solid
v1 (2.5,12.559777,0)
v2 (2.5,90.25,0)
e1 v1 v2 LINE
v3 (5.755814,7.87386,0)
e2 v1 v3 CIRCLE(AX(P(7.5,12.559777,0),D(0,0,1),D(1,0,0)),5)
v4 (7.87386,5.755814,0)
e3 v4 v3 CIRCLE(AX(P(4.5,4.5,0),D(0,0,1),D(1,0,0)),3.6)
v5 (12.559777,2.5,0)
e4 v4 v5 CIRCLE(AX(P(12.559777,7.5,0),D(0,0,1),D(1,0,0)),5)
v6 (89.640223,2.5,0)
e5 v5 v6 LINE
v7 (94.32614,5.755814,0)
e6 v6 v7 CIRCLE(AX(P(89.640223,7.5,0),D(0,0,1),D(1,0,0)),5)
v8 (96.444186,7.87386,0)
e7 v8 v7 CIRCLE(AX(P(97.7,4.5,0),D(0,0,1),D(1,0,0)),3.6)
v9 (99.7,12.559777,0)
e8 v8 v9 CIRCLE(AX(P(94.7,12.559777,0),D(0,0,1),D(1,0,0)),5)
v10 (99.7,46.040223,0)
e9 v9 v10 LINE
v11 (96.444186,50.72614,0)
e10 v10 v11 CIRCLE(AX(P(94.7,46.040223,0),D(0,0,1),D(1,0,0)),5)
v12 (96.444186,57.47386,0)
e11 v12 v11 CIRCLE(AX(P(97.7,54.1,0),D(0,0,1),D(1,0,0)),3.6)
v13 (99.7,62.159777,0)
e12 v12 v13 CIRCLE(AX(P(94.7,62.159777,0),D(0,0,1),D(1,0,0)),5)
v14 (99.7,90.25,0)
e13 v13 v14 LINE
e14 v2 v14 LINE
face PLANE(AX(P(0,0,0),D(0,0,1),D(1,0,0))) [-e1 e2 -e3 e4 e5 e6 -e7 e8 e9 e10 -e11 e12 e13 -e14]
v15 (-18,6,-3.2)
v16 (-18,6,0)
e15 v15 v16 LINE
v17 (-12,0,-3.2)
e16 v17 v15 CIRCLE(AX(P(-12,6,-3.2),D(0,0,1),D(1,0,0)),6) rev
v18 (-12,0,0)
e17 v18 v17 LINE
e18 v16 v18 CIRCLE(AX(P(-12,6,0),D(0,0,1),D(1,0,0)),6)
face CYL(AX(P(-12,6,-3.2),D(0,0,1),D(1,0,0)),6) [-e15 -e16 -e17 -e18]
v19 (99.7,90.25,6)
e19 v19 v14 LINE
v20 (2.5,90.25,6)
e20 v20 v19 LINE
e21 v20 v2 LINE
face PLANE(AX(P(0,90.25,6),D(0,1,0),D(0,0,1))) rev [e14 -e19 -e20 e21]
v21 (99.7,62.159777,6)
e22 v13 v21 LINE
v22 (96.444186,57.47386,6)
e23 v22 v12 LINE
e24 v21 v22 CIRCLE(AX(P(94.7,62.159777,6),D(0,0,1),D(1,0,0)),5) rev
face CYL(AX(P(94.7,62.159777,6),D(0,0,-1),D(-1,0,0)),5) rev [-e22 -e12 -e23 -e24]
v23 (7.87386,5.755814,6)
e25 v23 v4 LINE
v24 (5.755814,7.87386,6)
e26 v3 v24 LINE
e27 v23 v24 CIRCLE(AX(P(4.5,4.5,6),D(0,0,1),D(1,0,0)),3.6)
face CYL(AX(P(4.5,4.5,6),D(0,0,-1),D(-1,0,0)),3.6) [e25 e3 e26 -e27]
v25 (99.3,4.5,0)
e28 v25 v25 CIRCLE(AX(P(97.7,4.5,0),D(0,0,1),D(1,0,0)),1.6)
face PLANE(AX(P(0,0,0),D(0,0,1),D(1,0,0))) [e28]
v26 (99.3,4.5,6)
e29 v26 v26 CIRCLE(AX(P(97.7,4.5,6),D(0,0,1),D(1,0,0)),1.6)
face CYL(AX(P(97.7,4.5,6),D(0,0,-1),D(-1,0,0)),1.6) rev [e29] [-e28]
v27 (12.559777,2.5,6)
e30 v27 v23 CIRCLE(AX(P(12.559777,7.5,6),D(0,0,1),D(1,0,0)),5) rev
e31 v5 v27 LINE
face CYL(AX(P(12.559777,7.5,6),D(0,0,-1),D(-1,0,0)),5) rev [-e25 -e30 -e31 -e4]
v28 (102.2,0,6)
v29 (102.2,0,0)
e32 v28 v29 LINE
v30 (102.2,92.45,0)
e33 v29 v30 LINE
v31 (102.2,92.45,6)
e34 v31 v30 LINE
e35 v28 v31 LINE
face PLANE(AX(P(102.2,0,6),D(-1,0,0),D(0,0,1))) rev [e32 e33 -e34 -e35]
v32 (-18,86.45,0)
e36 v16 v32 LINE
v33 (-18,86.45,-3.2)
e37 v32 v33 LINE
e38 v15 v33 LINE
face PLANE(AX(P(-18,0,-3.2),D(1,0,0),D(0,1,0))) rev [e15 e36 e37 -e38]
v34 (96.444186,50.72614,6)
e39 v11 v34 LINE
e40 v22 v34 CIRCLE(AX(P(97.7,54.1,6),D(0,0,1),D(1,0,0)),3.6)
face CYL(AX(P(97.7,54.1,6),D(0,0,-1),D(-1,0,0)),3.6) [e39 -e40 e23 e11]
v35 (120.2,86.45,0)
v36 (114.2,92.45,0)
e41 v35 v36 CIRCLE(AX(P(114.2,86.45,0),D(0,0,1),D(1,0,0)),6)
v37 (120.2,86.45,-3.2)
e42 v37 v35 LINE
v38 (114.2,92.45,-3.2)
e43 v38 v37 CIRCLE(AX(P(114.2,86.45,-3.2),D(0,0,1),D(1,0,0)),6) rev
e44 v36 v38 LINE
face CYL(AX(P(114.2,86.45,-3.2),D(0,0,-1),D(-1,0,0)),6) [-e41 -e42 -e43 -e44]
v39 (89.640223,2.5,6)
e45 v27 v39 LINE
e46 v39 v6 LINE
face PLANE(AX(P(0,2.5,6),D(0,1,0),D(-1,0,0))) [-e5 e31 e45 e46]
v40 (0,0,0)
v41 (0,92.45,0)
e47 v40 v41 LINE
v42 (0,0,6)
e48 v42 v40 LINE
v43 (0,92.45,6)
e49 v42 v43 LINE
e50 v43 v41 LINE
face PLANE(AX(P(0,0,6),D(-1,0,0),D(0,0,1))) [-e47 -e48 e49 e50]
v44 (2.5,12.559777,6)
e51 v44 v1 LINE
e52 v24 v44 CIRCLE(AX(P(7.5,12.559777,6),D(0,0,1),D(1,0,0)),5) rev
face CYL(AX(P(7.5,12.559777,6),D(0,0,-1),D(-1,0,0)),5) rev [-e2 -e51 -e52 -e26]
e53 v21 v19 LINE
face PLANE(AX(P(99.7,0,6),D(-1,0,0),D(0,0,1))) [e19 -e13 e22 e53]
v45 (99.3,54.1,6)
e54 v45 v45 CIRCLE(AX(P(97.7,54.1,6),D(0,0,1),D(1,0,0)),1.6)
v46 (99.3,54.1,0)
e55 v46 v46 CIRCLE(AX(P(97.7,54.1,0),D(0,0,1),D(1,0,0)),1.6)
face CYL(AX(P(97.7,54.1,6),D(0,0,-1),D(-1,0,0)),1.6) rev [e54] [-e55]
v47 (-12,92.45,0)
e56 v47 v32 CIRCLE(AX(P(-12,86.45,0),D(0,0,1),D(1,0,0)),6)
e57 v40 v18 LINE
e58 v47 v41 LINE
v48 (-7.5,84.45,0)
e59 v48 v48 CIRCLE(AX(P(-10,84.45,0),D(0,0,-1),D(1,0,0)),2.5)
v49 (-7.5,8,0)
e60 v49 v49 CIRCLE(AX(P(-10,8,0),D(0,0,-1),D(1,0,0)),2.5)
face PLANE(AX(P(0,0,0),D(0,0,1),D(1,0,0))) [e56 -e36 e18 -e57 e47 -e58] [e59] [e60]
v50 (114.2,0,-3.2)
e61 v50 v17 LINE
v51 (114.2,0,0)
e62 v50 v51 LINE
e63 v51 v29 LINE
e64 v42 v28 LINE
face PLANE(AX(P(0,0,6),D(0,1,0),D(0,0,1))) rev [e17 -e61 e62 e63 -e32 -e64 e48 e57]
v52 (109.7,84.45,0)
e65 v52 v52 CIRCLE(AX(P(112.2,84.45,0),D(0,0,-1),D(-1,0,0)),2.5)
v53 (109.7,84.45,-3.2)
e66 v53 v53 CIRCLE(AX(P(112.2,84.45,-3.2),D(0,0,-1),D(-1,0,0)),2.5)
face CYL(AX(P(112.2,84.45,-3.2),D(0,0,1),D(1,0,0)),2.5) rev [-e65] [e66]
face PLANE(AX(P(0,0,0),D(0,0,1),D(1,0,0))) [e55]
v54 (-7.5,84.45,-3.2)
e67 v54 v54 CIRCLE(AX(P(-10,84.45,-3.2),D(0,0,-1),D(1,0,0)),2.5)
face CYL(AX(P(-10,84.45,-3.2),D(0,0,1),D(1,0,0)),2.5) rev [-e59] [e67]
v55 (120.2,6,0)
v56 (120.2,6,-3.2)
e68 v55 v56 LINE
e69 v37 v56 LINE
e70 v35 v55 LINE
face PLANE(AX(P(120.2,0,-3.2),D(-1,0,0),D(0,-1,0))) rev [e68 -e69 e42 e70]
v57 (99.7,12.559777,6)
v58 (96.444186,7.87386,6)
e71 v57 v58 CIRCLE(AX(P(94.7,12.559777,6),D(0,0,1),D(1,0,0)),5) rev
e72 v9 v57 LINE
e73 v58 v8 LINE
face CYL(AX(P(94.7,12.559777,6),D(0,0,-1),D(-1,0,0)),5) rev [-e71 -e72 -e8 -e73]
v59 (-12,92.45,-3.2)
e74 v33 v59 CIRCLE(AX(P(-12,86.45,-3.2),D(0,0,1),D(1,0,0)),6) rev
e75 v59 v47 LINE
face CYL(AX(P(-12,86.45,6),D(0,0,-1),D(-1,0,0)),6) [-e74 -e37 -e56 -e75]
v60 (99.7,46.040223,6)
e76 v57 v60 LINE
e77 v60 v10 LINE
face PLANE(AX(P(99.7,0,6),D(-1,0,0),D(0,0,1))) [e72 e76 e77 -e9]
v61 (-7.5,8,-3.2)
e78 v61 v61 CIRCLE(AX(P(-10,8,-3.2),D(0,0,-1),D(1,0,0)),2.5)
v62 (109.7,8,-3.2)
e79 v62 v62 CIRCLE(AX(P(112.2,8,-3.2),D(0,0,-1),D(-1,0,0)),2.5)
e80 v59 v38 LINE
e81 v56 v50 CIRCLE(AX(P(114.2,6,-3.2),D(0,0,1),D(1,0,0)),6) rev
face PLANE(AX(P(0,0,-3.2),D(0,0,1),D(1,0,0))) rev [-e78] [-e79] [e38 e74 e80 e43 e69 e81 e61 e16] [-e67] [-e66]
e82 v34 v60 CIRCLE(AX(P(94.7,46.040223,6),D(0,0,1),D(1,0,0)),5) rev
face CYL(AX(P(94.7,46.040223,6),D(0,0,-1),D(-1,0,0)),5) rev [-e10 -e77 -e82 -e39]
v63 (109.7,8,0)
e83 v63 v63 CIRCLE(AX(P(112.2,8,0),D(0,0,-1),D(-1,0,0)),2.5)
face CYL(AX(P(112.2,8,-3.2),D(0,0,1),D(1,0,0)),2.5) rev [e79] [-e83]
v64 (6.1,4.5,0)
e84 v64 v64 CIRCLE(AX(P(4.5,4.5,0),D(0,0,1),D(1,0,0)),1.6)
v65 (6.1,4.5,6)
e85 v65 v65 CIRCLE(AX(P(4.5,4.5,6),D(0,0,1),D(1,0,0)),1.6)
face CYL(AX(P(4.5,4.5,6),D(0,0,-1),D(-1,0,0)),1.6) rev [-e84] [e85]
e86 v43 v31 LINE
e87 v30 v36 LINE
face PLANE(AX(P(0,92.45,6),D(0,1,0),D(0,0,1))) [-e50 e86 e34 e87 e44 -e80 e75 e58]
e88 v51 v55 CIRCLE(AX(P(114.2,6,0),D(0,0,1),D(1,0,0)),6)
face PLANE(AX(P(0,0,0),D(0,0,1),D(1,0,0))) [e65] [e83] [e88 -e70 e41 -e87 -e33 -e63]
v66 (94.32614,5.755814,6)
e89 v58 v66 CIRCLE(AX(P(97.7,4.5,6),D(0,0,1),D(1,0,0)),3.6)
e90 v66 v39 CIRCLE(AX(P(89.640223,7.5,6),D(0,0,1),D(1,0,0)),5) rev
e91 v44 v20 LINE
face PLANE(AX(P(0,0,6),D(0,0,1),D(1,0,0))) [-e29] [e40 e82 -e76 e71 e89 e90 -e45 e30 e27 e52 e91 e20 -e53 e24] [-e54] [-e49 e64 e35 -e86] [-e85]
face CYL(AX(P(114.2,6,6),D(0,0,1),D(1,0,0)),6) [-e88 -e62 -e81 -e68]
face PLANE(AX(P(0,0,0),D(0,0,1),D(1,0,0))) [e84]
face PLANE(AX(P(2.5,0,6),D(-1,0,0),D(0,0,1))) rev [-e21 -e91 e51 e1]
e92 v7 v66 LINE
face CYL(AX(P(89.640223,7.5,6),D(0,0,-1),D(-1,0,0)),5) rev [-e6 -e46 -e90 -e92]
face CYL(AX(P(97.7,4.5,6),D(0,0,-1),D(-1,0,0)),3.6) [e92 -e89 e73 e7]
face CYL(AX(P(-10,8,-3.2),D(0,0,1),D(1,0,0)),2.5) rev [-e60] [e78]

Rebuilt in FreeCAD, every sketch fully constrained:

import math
import FreeCAD as App
import Part
import Sketcher
from FreeCAD import Vector


def edges_at(feature, points):
    """Names of the edges that pass closest to the given points."""
    edges = feature.Shape.Edges
    near = lambda p: min(range(len(edges)), key=lambda i: edges[i].distToShape(Part.Vertex(*p))[0])
    return sorted({f"Edge{near(p) + 1}" for p in points})


def add_polygon(sketch, points):
    """Adds a closed chain of lines whose ends are joined by coincident constraints."""
    first, n = sketch.GeometryCount, len(points)
    for a, b in zip(points, points[1:] + points[:1]):
        sketch.addGeometry(Part.LineSegment(App.Vector(*a, 0), App.Vector(*b, 0)), False)
    for i in range(n):
        sketch.addConstraint(Sketcher.Constraint("Coincident", first + i, 2, first + (i + 1) % n, 1))

doc = App.newDocument("Part")
body = doc.addObject("PartDesign::Body", "Body")

sketch1 = body.newObject("Sketcher::SketchObject", "Sketch")
sketch1.AttachmentSupport = (doc.getObject("XY_Plane"), [""])
sketch1.MapMode = "FlatFace"
add_polygon(sketch1, [(0, 92.5), (0, 0), (102.2, 0), (102.2, 92.5)])
sketch1.addGeometry(Part.Circle(Vector(4.5, 4.5, 0), Vector(0, 0, 1), 1.6), False)
sketch1.addGeometry(Part.Circle(Vector(97.7, 4.5, 0), Vector(0, 0, 1), 1.6), False)
sketch1.addGeometry(Part.ArcOfCircle(Part.Circle(Vector(97.7, 4.5, 0), Vector(0, 0, 1), 3.6), math.radians(56), math.radians(214)), False)
sketch1.addGeometry(Part.LineSegment(Vector(94.7, 2.5, 0), Vector(7.5, 2.5, 0)), False)
sketch1.addGeometry(Part.ArcOfCircle(Part.Circle(Vector(4.5, 4.5, 0), Vector(0, 0, 1), 3.6), math.radians(-34), math.radians(124)), False)
sketch1.addGeometry(Part.LineSegment(Vector(2.5, 7.5, 0), Vector(2.5, 90.2, 0)), False)
sketch1.addGeometry(Part.LineSegment(Vector(2.5, 90.2, 0), Vector(99.7, 90.2, 0)), False)
sketch1.addGeometry(Part.LineSegment(Vector(99.7, 90.2, 0), Vector(99.7, 57.1, 0)), False)
sketch1.addGeometry(Part.ArcOfCircle(Part.Circle(Vector(97.7, 54.1, 0), Vector(0, 0, 1), 3.6), math.radians(56), math.radians(304)), False)
sketch1.addGeometry(Part.LineSegment(Vector(99.7, 51.1, 0), Vector(99.7, 7.5, 0)), False)
sketch1.addGeometry(Part.Circle(Vector(97.7, 54.1, 0), Vector(0, 0, 1), 1.6), False)
sketch1.addConstraint([
    Sketcher.Constraint("Coincident", 6, 2, 7, 1),
    Sketcher.Constraint("Coincident", 7, 2, 8, 1),
    Sketcher.Constraint("Coincident", 8, 2, 9, 1),
    Sketcher.Constraint("Coincident", 9, 2, 10, 1),
    Sketcher.Constraint("Coincident", 10, 2, 11, 1),
    Sketcher.Constraint("Coincident", 11, 2, 12, 1),
    Sketcher.Constraint("Coincident", 12, 2, 13, 1),
    Sketcher.Constraint("Coincident", 13, 2, 6, 1),
    Sketcher.Constraint("Vertical", 0),
    Sketcher.Constraint("Horizontal", 1),
    Sketcher.Constraint("Vertical", 2),
    Sketcher.Constraint("Horizontal", 3),
    Sketcher.Constraint("Horizontal", 7),
    Sketcher.Constraint("Vertical", 9),
    Sketcher.Constraint("Horizontal", 10),
    Sketcher.Constraint("Vertical", 11),
    Sketcher.Constraint("Vertical", 13),
    Sketcher.Constraint("Coincident", 0, 2, -1, 1),
    Sketcher.Constraint("Coincident", 6, 3, 5, 3),
    Sketcher.Constraint("Coincident", 8, 3, 4, 3),
    Sketcher.Constraint("Coincident", 14, 3, 12, 3),
    Sketcher.Constraint("Equal", 4, 5),
    Sketcher.Constraint("Equal", 6, 8),
    Sketcher.Constraint("Equal", 8, 12),
    Sketcher.Constraint("Equal", 5, 14),
    Sketcher.Constraint("Horizontal", 4, 3, 5, 3),
    Sketcher.Constraint("Horizontal", 8, 2, 13, 2),
    Sketcher.Constraint("Vertical", 6, 3, 12, 3),
    Sketcher.Constraint("Vertical", 11, 2, 12, 2),
    Sketcher.Constraint("Diameter", 4, 3.2),
    Sketcher.Constraint("Radius", 6, 3.6),
    Sketcher.Constraint("DistanceX", 1, 1, 1, 2, 102.2),
    Sketcher.Constraint("DistanceX", 10, 1, 10, 2, 97.2),
    Sketcher.Constraint("DistanceY", 6, 2, 5, 3, 2.0),
    Sketcher.Constraint("DistanceX", 8, 2, 4, 3, 2.0),
    Sketcher.Constraint("DistanceY", 0, 2, 0, 1, 92.45),
    Sketcher.Constraint("DistanceX", -1, 1, 4, 3, 4.5),
    Sketcher.Constraint("DistanceY", -1, 1, 4, 3, 4.5),
    Sketcher.Constraint("DistanceY", -1, 1, 12, 3, 54.1),
    Sketcher.Constraint("DistanceY", 9, 2, 3, 2, 2.2),
])
pad1 = body.newObject("PartDesign::Pad", "Pad")
pad1.Profile = sketch1
pad1.Length = 6

sketch2 = body.newObject("Sketcher::SketchObject", "Sketch001")
sketch2.AttachmentSupport = (doc.getObject("XY_Plane"), [""])
sketch2.MapMode = "FlatFace"
add_polygon(sketch2, [(120.2, 92.5), (120.2, 0), (-18, 0), (-18, 92.5)])
sketch2.addGeometry(Part.Circle(Vector(112.2, 8, 0), Vector(0, 0, 1), 2.5), False)
sketch2.addGeometry(Part.Circle(Vector(-10, 8, 0), Vector(0, 0, 1), 2.5), False)
sketch2.addGeometry(Part.Circle(Vector(112.2, 84.5, 0), Vector(0, 0, 1), 2.5), False)
sketch2.addGeometry(Part.Circle(Vector(-10, 84.5, 0), Vector(0, 0, 1), 2.5), False)
sketch2.addConstraint([
    Sketcher.Constraint("Vertical", 0),
    Sketcher.Constraint("Horizontal", 1),
    Sketcher.Constraint("Vertical", 2),
    Sketcher.Constraint("Horizontal", 3),
    Sketcher.Constraint("Equal", 4, 5),
    Sketcher.Constraint("Equal", 5, 6),
    Sketcher.Constraint("Equal", 6, 7),
    Sketcher.Constraint("PointOnObject", 0, 2, -1),
    Sketcher.Constraint("Horizontal", 4, 3, 5, 3),
    Sketcher.Constraint("Horizontal", 6, 3, 7, 3),
    Sketcher.Constraint("Vertical", 4, 3, 6, 3),
    Sketcher.Constraint("Vertical", 5, 3, 7, 3),
    Sketcher.Constraint("Diameter", 4, 5.0),
    Sketcher.Constraint("DistanceX", 1, 2, 1, 1, 138.2),
    Sketcher.Constraint("DistanceY", -1, 1, 4, 3, 8.0),
    Sketcher.Constraint("DistanceX", 5, 3, -1, 1, 10.0),
    Sketcher.Constraint("DistanceX", 1, 2, -1, 1, 18.0),
    Sketcher.Constraint("DistanceX", 4, 3, 0, 2, 8.0),
    Sketcher.Constraint("DistanceY", 7, 3, 2, 2, 8.0),
    Sketcher.Constraint("DistanceY", 0, 2, 0, 1, 92.45),
])
pad2 = body.newObject("PartDesign::Pad", "Pad001")
pad2.Profile = sketch2
pad2.Length = 3.2
pad2.Reversed = True
doc.recompute()

fillet = body.newObject("PartDesign::Fillet", "Fillet")
fillet.Base = (pad2, edges_at(pad2, [
    (120.2, 92.45, -1.6),
    (120.2, 0, -1.6),
    (-18, 0, -1.6),
    (-18, 92.45, -1.6),
]))
fillet.Radius = 6
doc.recompute()

fillet2 = body.newObject("PartDesign::Fillet", "Fillet001")
fillet2.Base = (fillet, edges_at(fillet, [(99.7, 51.107, 3), (99.7, 57.093, 3)]))
fillet2.Radius = 5
doc.recompute()

fillet3 = body.newObject("PartDesign::Fillet", "Fillet002")
fillet3.Base = (fillet2, edges_at(fillet2, [
    (7.493, 2.5, 3),
    (94.707, 2.5, 3),
    (99.7, 7.493, 3),
    (2.5, 7.493, 3),
]))
fillet3.Radius = 5

doc.recompute()
